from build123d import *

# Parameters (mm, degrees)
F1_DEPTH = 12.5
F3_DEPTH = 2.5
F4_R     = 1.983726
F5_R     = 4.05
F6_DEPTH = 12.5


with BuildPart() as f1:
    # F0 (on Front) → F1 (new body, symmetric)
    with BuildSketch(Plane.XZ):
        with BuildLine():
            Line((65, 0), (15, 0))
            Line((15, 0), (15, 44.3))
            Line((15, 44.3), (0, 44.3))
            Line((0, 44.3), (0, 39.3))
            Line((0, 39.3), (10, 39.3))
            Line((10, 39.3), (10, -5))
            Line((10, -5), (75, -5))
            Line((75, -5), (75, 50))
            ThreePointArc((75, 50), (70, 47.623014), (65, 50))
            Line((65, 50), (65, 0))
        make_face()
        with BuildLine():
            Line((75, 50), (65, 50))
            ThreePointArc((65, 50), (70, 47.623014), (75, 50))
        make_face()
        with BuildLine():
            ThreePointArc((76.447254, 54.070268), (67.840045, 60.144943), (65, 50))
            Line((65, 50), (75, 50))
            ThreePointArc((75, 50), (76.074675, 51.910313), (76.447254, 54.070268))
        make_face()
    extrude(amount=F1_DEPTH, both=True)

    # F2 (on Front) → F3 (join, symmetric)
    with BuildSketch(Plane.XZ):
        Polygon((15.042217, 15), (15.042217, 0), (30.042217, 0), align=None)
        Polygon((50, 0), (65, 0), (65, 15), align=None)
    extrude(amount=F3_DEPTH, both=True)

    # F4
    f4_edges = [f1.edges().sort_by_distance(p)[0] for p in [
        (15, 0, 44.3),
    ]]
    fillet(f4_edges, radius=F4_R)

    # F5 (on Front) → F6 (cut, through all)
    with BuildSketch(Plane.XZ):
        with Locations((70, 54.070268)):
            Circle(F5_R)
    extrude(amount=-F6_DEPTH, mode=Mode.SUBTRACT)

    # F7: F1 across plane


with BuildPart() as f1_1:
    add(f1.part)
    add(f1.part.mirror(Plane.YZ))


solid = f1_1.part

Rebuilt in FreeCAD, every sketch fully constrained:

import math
import FreeCAD as App
import Part
import Sketcher
from FreeCAD import Vector


def edges_at(feature, points):
    """Names of the edges that pass closest to the given points."""
    edges = feature.Shape.Edges
    near = lambda p: min(range(len(edges)), key=lambda i: edges[i].distToShape(Part.Vertex(*p))[0])
    return sorted({f"Edge{near(p) + 1}" for p in points})


def add_polygon(sketch, points):
    """Adds a closed chain of lines whose ends are joined by coincident constraints."""
    first, n = sketch.GeometryCount, len(points)
    for a, b in zip(points, points[1:] + points[:1]):
        sketch.addGeometry(Part.LineSegment(App.Vector(*a, 0), App.Vector(*b, 0)), False)
    for i in range(n):
        sketch.addConstraint(Sketcher.Constraint("Coincident", first + i, 2, first + (i + 1) % n, 1))

doc = App.newDocument("Part")
params = doc.addObject("Spreadsheet::Sheet", "Params")
for row, (alias, value) in enumerate([
    ("sketch1_width", "50 mm"),
    ("sketch1_width2", "15 mm"),
    ("sketch1_width3", "10 mm"),
    ("sketch1_width4", "65 mm"),
    ("sketch1_height", "5 mm"),
    ("pad1_length", "25 mm"),
    ("sketch2_width", "15 mm"),
    ("pad2_length", "5 mm"),
    ("fillet_radius", "1.983726 mm"),
    ("sketch3_diameter", "8.1 mm"),
], start=1):
    params.set(f"A{row}", alias)
    params.set(f"B{row}", "=" + value)
    params.setAlias(f"B{row}", alias)

body = doc.addObject("PartDesign::Body", "Body")

# Sketch on XZ plane
sketch1 = body.newObject("Sketcher::SketchObject", "Sketch")
sketch1.AttachmentSupport = (doc.getObject("XZ_Plane"), [""])
sketch1.MapMode = "FlatFace"
sketch1.addGeometry(Part.LineSegment(Vector(65, 0, 0), Vector(15, 0, 0)), False)
sketch1.addGeometry(Part.LineSegment(Vector(15, 0, 0), Vector(15, 44.3, 0)), False)
sketch1.addGeometry(Part.LineSegment(Vector(15, 44.3, 0), Vector(0, 44.3, 0)), False)
sketch1.addGeometry(Part.LineSegment(Vector(0, 44.3, 0), Vector(0, 39.3, 0)), False)
sketch1.addGeometry(Part.LineSegment(Vector(0, 39.3, 0), Vector(10, 39.3, 0)), False)
sketch1.addGeometry(Part.LineSegment(Vector(10, 39.3, 0), Vector(10, -5, 0)), False)
sketch1.addGeometry(Part.LineSegment(Vector(10, -5, 0), Vector(75, -5, 0)), False)
sketch1.addGeometry(Part.LineSegment(Vector(75, -5, 0), Vector(75, 50, 0)), False)
sketch1.addGeometry(Part.ArcOfCircle(Part.Circle(Vector(70, 54.1, 0), Vector(0, 0, 1), 6.4), math.radians(-39), math.radians(0)), False)
sketch1.addGeometry(Part.ArcOfCircle(Part.Circle(Vector(70, 54.1, 0), Vector(0, 0, 1), 6.4), math.radians(0), math.radians(219)), False)
sketch1.addGeometry(Part.LineSegment(Vector(65, 50, 0), Vector(65, 0, 0)), False)
sketch1.addConstraint(Sketcher.Constraint("Coincident", 0, 2, 1, 1))
sketch1.addConstraint(Sketcher.Constraint("Coincident", 1, 2, 2, 1))
sketch1.addConstraint(Sketcher.Constraint("Coincident", 2, 2, 3, 1))
sketch1.addConstraint(Sketcher.Constraint("Coincident", 3, 2, 4, 1))
sketch1.addConstraint(Sketcher.Constraint("Coincident", 4, 2, 5, 1))
sketch1.addConstraint(Sketcher.Constraint("Coincident", 5, 2, 6, 1))
sketch1.addConstraint(Sketcher.Constraint("Coincident", 6, 2, 7, 1))
sketch1.addConstraint(Sketcher.Constraint("Coincident", 7, 2, 8, 1))
sketch1.addConstraint(Sketcher.Constraint("Tangent", 8, 2, 9, 1))
sketch1.addConstraint(Sketcher.Constraint("Coincident", 9, 2, 10, 1))
sketch1.addConstraint(Sketcher.Constraint("Coincident", 10, 2, 0, 1))
sketch1.addConstraint(Sketcher.Constraint("Horizontal", 0))
sketch1.addConstraint(Sketcher.Constraint("Vertical", 1))
sketch1.addConstraint(Sketcher.Constraint("Horizontal", 2))
sketch1.addConstraint(Sketcher.Constraint("Vertical", 3))
sketch1.addConstraint(Sketcher.Constraint("Horizontal", 4))
sketch1.addConstraint(Sketcher.Constraint("Vertical", 5))
sketch1.addConstraint(Sketcher.Constraint("Horizontal", 6))
sketch1.addConstraint(Sketcher.Constraint("Vertical", 7))
sketch1.addConstraint(Sketcher.Constraint("Vertical", 10))
sketch1.addConstraint(Sketcher.Constraint("Equal", 8, 9))
sketch1.addConstraint(Sketcher.Constraint("PointOnObject", 0, 2, -1))
sketch1.addConstraint(Sketcher.Constraint("PointOnObject", 2, 2, -2))
sketch1.addConstraint(Sketcher.Constraint("Horizontal", 9, 3, 8, 2))
sketch1.addConstraint(Sketcher.Constraint("Horizontal", 7, 2, 9, 2))
sketch1.addConstraint(Sketcher.Constraint("Equal", 1, 5))
sketch1.addConstraint(Sketcher.Constraint("Equal", 0, 10))
sketch1.addConstraint(Sketcher.Constraint("DistanceX", 0, 2, 0, 1, 50.0))
sketch1.addConstraint(Sketcher.Constraint("DistanceX", 2, 2, 2, 1, 15.0))
sketch1.addConstraint(Sketcher.Constraint("DistanceX", 4, 1, 4, 2, 10.0))
sketch1.addConstraint(Sketcher.Constraint("DistanceX", 6, 1, 6, 2, 65.0))
sketch1.addConstraint(Sketcher.Constraint("DistanceY", 3, 2, 3, 1, 5.0))
sketch1.addConstraint(Sketcher.Constraint("DistanceY", 1, 1, 1, 2, 44.3))
sketch1.addConstraint(Sketcher.Constraint("Radius", 8, 6.447255))
sketch1.setExpression("Constraints[27]", "Params.sketch1_width")
sketch1.setExpression("Constraints[28]", "Params.sketch1_width2")
sketch1.setExpression("Constraints[29]", "Params.sketch1_width3")
sketch1.setExpression("Constraints[30]", "Params.sketch1_width4")
sketch1.setExpression("Constraints[31]", "Params.sketch1_height")
pad1 = body.newObject("PartDesign::Pad", "Pad")
pad1.Profile = sketch1
pad1.setExpression("Length", "Params.pad1_length")
pad1.Midplane = True

# Sketch on XZ plane
sketch2 = body.newObject("Sketcher::SketchObject", "Sketch001")
sketch2.AttachmentSupport = (doc.getObject("XZ_Plane"), [""])
sketch2.MapMode = "FlatFace"
add_polygon(sketch2, [(15, 15), (15, 0), (30, 0)])  # lines 0-2
add_polygon(sketch2, [(50, 0), (65, 0), (65, 15)])  # lines 3-5
sketch2.addConstraint(Sketcher.Constraint("Vertical", 0))
sketch2.addConstraint(Sketcher.Constraint("Horizontal", 1))
sketch2.addConstraint(Sketcher.Constraint("Horizontal", 3))
sketch2.addConstraint(Sketcher.Constraint("Vertical", 4))
sketch2.addConstraint(Sketcher.Constraint("PointOnObject", 0, 2, -1))
sketch2.addConstraint(Sketcher.Constraint("PointOnObject", 3, 2, -1))
sketch2.addConstraint(Sketcher.Constraint("Perpendicular", 2, 5))
sketch2.addConstraint(Sketcher.Constraint("Horizontal", 2, 2, 4, 2))
sketch2.addConstraint(Sketcher.Constraint("Equal", 1, 3))
sketch2.addConstraint(Sketcher.Constraint("DistanceX", 1, 1, 1, 2, 15.0))
sketch2.addConstraint(Sketcher.Constraint("DistanceX", -1, 1, 3, 2, 65.0))
sketch2.addConstraint(Sketcher.Constraint("DistanceX", -1, 1, 0, 2, 15.042217))
sketch2.setExpression("Constraints[15]", "Params.sketch2_width")
pad2 = body.newObject("PartDesign::Pad", "Pad001")
pad2.Profile = sketch2
pad2.setExpression("Length", "Params.pad2_length")
pad2.Midplane = True
doc.recompute()

fillet = body.newObject("PartDesign::Fillet", "Fillet")
fillet.Base = (pad2, edges_at(pad2, [(15, 0, 44.3)]))
fillet.setExpression("Radius", "Params.fillet_radius")

# Sketch on XZ plane
sketch3 = body.newObject("Sketcher::SketchObject", "Sketch002")
sketch3.AttachmentSupport = (doc.getObject("XZ_Plane"), [""])
sketch3.MapMode = "FlatFace"
sketch3.addGeometry(Part.Circle(Vector(70, 54.1, 0), Vector(0, 0, 1), 4), False)
sketch3.addConstraint(Sketcher.Constraint("Diameter", 0, 8.1))
sketch3.addConstraint(Sketcher.Constraint("DistanceX", -1, 1, 0, 3, 70.0))
sketch3.addConstraint(Sketcher.Constraint("DistanceY", -1, 1, 0, 3, 54.070268))
sketch3.setExpression("Constraints[0]", "Params.sketch3_diameter")
pocket1 = body.newObject("PartDesign::Pocket", "Pocket")
pocket1.Profile = sketch3
pocket1.Type = "ThroughAll"
body2 = doc.addObject("PartDesign::Body", "Body001")
doc.recompute()

body2.BaseFeature = body
doc.recompute()

mirroring = doc.addObject("Part::Mirroring", "Mirroring")
mirroring.Source = body
mirroring.Base = Vector(0, 0, 0)
mirroring.Normal = Vector(1, 0, 0)
body3 = doc.addObject("PartDesign::Body", "Body002")
body3.BaseFeature = mirroring
boolean = body2.newObject("PartDesign::Boolean", "Boolean")
boolean.Type = "Fuse"
boolean.addObjects([body3])
doc.recompute()
mirroring.Visibility = False

doc.recompute()
